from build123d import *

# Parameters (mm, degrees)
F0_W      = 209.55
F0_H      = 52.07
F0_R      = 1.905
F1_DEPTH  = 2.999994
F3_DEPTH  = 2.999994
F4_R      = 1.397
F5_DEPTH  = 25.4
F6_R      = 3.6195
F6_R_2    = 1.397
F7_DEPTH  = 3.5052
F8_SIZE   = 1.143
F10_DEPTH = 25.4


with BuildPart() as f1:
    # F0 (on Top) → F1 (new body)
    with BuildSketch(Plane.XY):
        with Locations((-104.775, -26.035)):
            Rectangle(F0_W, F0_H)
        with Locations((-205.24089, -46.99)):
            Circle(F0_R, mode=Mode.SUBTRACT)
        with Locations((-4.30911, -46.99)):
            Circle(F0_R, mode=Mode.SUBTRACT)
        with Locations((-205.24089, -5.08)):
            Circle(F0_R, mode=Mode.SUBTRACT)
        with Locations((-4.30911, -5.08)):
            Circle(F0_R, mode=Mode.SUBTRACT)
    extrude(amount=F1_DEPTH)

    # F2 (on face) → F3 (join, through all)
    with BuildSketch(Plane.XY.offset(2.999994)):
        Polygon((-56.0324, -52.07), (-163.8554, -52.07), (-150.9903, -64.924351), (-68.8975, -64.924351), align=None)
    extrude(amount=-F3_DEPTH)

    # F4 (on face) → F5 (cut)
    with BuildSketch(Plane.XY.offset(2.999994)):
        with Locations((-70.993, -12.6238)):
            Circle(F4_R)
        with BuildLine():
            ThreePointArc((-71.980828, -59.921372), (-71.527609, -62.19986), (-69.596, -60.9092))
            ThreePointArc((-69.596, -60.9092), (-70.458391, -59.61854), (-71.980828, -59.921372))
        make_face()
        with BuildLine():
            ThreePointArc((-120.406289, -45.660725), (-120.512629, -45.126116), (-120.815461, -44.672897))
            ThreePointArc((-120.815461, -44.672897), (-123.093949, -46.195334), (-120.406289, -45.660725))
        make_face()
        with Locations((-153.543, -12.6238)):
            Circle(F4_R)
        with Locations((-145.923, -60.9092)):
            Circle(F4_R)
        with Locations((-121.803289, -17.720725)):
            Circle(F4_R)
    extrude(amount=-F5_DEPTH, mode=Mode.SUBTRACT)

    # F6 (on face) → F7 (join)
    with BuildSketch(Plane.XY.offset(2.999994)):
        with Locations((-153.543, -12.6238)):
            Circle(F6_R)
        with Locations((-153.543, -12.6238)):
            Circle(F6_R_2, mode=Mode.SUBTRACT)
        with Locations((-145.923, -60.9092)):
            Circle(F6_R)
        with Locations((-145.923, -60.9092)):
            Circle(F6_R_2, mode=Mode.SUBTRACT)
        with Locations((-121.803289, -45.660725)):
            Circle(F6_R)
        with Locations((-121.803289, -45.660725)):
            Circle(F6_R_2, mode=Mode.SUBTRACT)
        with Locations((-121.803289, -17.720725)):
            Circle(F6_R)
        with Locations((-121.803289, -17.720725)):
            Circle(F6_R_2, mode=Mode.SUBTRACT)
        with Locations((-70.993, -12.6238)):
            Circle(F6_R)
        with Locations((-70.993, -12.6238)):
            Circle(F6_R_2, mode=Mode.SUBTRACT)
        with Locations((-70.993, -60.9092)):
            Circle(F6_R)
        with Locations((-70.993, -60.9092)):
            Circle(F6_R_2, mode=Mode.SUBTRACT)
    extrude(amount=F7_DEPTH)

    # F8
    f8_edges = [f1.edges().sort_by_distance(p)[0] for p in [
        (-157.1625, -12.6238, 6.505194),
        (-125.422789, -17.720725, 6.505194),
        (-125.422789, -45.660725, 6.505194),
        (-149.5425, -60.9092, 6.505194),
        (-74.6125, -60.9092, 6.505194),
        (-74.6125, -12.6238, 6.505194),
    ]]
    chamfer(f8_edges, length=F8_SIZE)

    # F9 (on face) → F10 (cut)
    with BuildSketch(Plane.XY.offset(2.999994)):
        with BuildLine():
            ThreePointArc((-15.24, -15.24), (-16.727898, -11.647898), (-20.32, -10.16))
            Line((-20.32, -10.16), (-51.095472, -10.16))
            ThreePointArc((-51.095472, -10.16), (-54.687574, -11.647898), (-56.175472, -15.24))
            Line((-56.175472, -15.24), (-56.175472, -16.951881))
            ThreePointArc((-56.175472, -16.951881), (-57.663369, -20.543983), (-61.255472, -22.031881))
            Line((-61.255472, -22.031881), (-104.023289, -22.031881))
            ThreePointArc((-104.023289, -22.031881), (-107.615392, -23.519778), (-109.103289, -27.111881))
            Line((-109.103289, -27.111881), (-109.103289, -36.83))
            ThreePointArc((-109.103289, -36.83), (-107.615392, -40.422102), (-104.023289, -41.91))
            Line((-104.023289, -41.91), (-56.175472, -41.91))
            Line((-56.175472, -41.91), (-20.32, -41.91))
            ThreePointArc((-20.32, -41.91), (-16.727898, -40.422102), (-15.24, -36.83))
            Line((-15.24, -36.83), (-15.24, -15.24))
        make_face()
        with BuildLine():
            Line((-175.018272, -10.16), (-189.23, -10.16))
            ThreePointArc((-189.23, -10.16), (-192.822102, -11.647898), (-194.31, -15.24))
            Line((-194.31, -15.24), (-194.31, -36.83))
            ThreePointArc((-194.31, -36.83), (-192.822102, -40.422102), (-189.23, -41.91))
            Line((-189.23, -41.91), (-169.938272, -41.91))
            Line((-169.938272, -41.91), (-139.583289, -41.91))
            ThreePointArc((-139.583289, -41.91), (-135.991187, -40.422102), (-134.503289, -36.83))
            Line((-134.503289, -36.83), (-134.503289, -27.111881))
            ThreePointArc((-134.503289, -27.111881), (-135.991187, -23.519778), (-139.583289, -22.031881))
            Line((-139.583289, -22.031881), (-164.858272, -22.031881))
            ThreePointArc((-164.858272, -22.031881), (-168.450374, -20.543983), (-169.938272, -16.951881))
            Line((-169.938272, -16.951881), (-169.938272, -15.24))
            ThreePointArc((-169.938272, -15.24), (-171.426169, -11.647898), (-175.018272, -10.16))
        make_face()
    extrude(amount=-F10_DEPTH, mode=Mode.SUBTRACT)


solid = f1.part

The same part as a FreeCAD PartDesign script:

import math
import FreeCAD as App
import Part
import Sketcher

V = App.Vector
Q = App.Units.Quantity


def edges_at(feature, points):
    """Names of the edges that pass closest to the given points."""
    edges = feature.Shape.Edges
    near = lambda p: min(range(len(edges)), key=lambda i: edges[i].distToShape(Part.Vertex(*p))[0])
    return sorted({f"Edge{near(p) + 1}" for p in points})


def add_polygon(sketch, points):
    """Adds a closed chain of lines whose ends are joined by coincident constraints."""
    first, n = sketch.GeometryCount, len(points)
    for a, b in zip(points, points[1:] + points[:1]):
        sketch.addGeometry(Part.LineSegment(App.Vector(*a, 0), App.Vector(*b, 0)), False)
    for i in range(n):
        sketch.addConstraint(Sketcher.Constraint("Coincident", first + i, 2, first + (i + 1) % n, 1))

doc = App.newDocument("Part")
body = doc.addObject("PartDesign::Body", "Body")

sketch1 = body.newObject("Sketcher::SketchObject", "Sketch")
sketch1.AttachmentSupport = (doc.getObject("XY_Plane"), [""])
sketch1.MapMode = "FlatFace"
add_polygon(sketch1, [(-209.6, 0), (-209.6, -52.1), (0, -52.1), (0, 0)])
sketch1.addGeometry(Part.Circle(V(-205.2, -47, 0), V(0, 0, 1), 1.9), False)
sketch1.addGeometry(Part.Circle(V(-4.3, -47, 0), V(0, 0, 1), 1.9), False)
sketch1.addGeometry(Part.Circle(V(-205.2, -5.1, 0), V(0, 0, 1), 1.9), False)
sketch1.addGeometry(Part.Circle(V(-4.3, -5.1, 0), V(0, 0, 1), 1.9), False)
sketch1.addConstraint(Sketcher.Constraint("Vertical", 0))
sketch1.addConstraint(Sketcher.Constraint("Horizontal", 1))
sketch1.addConstraint(Sketcher.Constraint("Vertical", 2))
sketch1.addConstraint(Sketcher.Constraint("Horizontal", 3))
sketch1.addConstraint(Sketcher.Constraint("Coincident", 2, 2, -1, 1))
sketch1.addConstraint(Sketcher.Constraint("Equal", 4, 5))
sketch1.addConstraint(Sketcher.Constraint("Equal", 5, 6))
sketch1.addConstraint(Sketcher.Constraint("Equal", 6, 7))
sketch1.addConstraint(Sketcher.Constraint("Horizontal", 4, 3, 5, 3))
sketch1.addConstraint(Sketcher.Constraint("Horizontal", 6, 3, 7, 3))
sketch1.addConstraint(Sketcher.Constraint("Vertical", 4, 3, 6, 3))
sketch1.addConstraint(Sketcher.Constraint("Vertical", 5, 3, 7, 3))
sketch1.addConstraint(Sketcher.Constraint("Diameter", 4, Q("0.15 in")))
sketch1.addConstraint(Sketcher.Constraint("DistanceX", 1, 1, 1, 2, Q("8.25 in")))
sketch1.addConstraint(Sketcher.Constraint("DistanceY", 0, 2, 0, 1, Q("2.05 in")))
sketch1.addConstraint(Sketcher.Constraint("DistanceY", 6, 3, -1, 1, Q("0.2 in")))
sketch1.addConstraint(Sketcher.Constraint("DistanceY", 0, 2, 4, 3, Q("0.2 in")))
sketch1.addConstraint(Sketcher.Constraint("DistanceX", 4, 3, 5, 3, Q("7.9107 in")))
sketch1.addConstraint(Sketcher.Constraint("DistanceX", 4, 3, -1, 1, Q("205.24089 mm")))
pad1 = body.newObject("PartDesign::Pad", "Pad")
pad1.Profile = sketch1
pad1.Length = 2.999994

sketch2 = body.newObject("Sketcher::SketchObject", "Sketch001")
sketch2.AttachmentSupport = (doc.getObject("XY_Plane"), [""])
sketch2.MapMode = "FlatFace"
sketch2.AttachmentOffset = App.Placement(V(0, 0, 2.999994), App.Rotation())
add_polygon(sketch2, [(-56, -52), (-164, -52), (-151, -65), (-69, -65)])
sketch2.addConstraint(Sketcher.Constraint("Horizontal", 0))
sketch2.addConstraint(Sketcher.Constraint("Horizontal", 2))
sketch2.addConstraint(Sketcher.Constraint("Equal", 1, 3))
sketch2.addConstraint(Sketcher.Constraint("DistanceX", 0, 2, 0, 1, Q("4.245 in")))
sketch2.addConstraint(Sketcher.Constraint("DistanceX", 2, 1, 2, 2, Q("3.232 in")))
sketch2.addConstraint(Sketcher.Constraint("DistanceY", 0, 2, -1, 1, Q("2.05 in")))
sketch2.addConstraint(Sketcher.Constraint("Distance", 1, Q("0.716 in")))
sketch2.addConstraint(Sketcher.Constraint("DistanceX", 0, 2, -1, 1, Q("6.451 in")))
pad2 = body.newObject("PartDesign::Pad", "Pad001")
pad2.Profile = sketch2
pad2.Length = 2.999994
pad2.Reversed = True

sketch3 = body.newObject("Sketcher::SketchObject", "Sketch002")
sketch3.AttachmentSupport = (doc.getObject("XY_Plane"), [""])
sketch3.MapMode = "FlatFace"
sketch3.AttachmentOffset = App.Placement(V(0, 0, 2.999994), App.Rotation())
sketch3.addGeometry(Part.Circle(V(-71, -12.6, 0), V(0, 0, 1), 1.4), False)
sketch3.addGeometry(Part.ArcOfCircle(Part.Circle(V(-71, -60.9, 0), V(0, 0, 1), 1.4), math.radians(135), math.radians(360)), False)
sketch3.addGeometry(Part.ArcOfCircle(Part.Circle(V(-71, -60.9, 0), V(0, 0, 1), 1.4), math.radians(0), math.radians(135)), False)
sketch3.addGeometry(Part.ArcOfCircle(Part.Circle(V(-121.8, -45.7, 0), V(0, 0, 1), 1.4), math.radians(0), math.radians(45)), False)
sketch3.addGeometry(Part.ArcOfCircle(Part.Circle(V(-121.8, -45.7, 0), V(0, 0, 1), 1.4), math.radians(45), math.radians(360)), False)
sketch3.addGeometry(Part.Circle(V(-153.5, -12.6, 0), V(0, 0, 1), 1.4), False)
sketch3.addGeometry(Part.Circle(V(-145.9, -60.9, 0), V(0, 0, 1), 1.4), False)
sketch3.addGeometry(Part.Circle(V(-121.8, -17.7, 0), V(0, 0, 1), 1.4), False)
sketch3.addConstraint(Sketcher.Constraint("Tangent", 1, 1, 2, 2))
sketch3.addConstraint(Sketcher.Constraint("Coincident", 2, 1, 1, 2))
sketch3.addConstraint(Sketcher.Constraint("Tangent", 3, 1, 4, 2))
sketch3.addConstraint(Sketcher.Constraint("Coincident", 4, 1, 3, 2))
sketch3.addConstraint(Sketcher.Constraint("Equal", 0, 1))
sketch3.addConstraint(Sketcher.Constraint("Equal", 2, 4))
sketch3.addConstraint(Sketcher.Constraint("Equal", 4, 5))
sketch3.addConstraint(Sketcher.Constraint("Equal", 5, 6))
sketch3.addConstraint(Sketcher.Constraint("Equal", 6, 7))
sketch3.addConstraint(Sketcher.Constraint("Horizontal", 0, 3, 5, 3))
sketch3.addConstraint(Sketcher.Constraint("Horizontal", 2, 3, 6, 3))
sketch3.addConstraint(Sketcher.Constraint("Horizontal", 6, 3, 2, 1))
sketch3.addConstraint(Sketcher.Constraint("Horizontal", 4, 3, 3, 1))
sketch3.addConstraint(Sketcher.Constraint("Vertical", 0, 3, 1, 3))
sketch3.addConstraint(Sketcher.Constraint("Vertical", 4, 3, 7, 3))
sketch3.addConstraint(Sketcher.Constraint("Diameter", 0, Q("0.11 in")))
sketch3.addConstraint(Sketcher.Constraint("DistanceX", 5, 3, 6, 3, Q("0.3 in")))
sketch3.addConstraint(Sketcher.Constraint("DistanceY", 3, 3, 7, 3, Q("1.0999999 in")))
sketch3.addConstraint(Sketcher.Constraint("DistanceX", 2, 1, -1, 1, Q("2.74 in")))
sketch3.addConstraint(Sketcher.Constraint("DistanceX", 5, 3, 0, 3, Q("3.25 in")))
sketch3.addConstraint(Sketcher.Constraint("DistanceY", 0, 3, -1, 1, Q("0.497 in")))
sketch3.addConstraint(Sketcher.Constraint("DistanceY", 1, 3, -1, 1, Q("2.398 in")))
sketch3.addConstraint(Sketcher.Constraint("DistanceX", 4, 3, -1, 1, Q("121.803289 mm")))
sketch3.addConstraint(Sketcher.Constraint("DistanceX", 4, 1, -1, 1, Q("120.815461 mm")))
sketch3.addConstraint(Sketcher.Constraint("DistanceX", 1, 1, 2, 3, Q("0.987828 mm")))
sketch3.addConstraint(Sketcher.Constraint("DistanceY", 1, 1, 3, 3, Q("14.260649 mm")))
pocket1 = body.newObject("PartDesign::Pocket", "Pocket")
pocket1.Profile = sketch3
pocket1.Length = Q("1 in")

sketch4 = body.newObject("Sketcher::SketchObject", "Sketch003")
sketch4.AttachmentSupport = (doc.getObject("XY_Plane"), [""])
sketch4.MapMode = "FlatFace"
sketch4.AttachmentOffset = App.Placement(V(0, 0, 2.999994), App.Rotation())
sketch4.addGeometry(Part.Circle(V(-153.5, -12.6, 0), V(0, 0, 1), 3.6), False)
sketch4.addGeometry(Part.Circle(V(-153.5, -12.6, 0), V(0, 0, 1), 1.4), False)
sketch4.addGeometry(Part.Circle(V(-145.9, -60.9, 0), V(0, 0, 1), 3.6), False)
sketch4.addGeometry(Part.Circle(V(-145.9, -60.9, 0), V(0, 0, 1), 1.4), False)
sketch4.addGeometry(Part.Circle(V(-121.8, -45.7, 0), V(0, 0, 1), 3.6), False)
sketch4.addGeometry(Part.Circle(V(-121.8, -45.7, 0), V(0, 0, 1), 1.4), False)
sketch4.addGeometry(Part.Circle(V(-121.8, -17.7, 0), V(0, 0, 1), 3.6), False)
sketch4.addGeometry(Part.Circle(V(-121.8, -17.7, 0), V(0, 0, 1), 1.4), False)
sketch4.addGeometry(Part.Circle(V(-71, -12.6, 0), V(0, 0, 1), 3.6), False)
sketch4.addGeometry(Part.Circle(V(-71, -12.6, 0), V(0, 0, 1), 1.4), False)
sketch4.addGeometry(Part.Circle(V(-71, -60.9, 0), V(0, 0, 1), 3.6), False)
sketch4.addGeometry(Part.Circle(V(-71, -60.9, 0), V(0, 0, 1), 1.4), False)
sketch4.addConstraint(Sketcher.Constraint("Coincident", 1, 3, 0, 3))
sketch4.addConstraint(Sketcher.Constraint("Coincident", 3, 3, 2, 3))
sketch4.addConstraint(Sketcher.Constraint("Coincident", 5, 3, 4, 3))
sketch4.addConstraint(Sketcher.Constraint("Coincident", 7, 3, 6, 3))
sketch4.addConstraint(Sketcher.Constraint("Coincident", 9, 3, 8, 3))
sketch4.addConstraint(Sketcher.Constraint("Coincident", 11, 3, 10, 3))
sketch4.addConstraint(Sketcher.Constraint("Equal", 0, 2))
sketch4.addConstraint(Sketcher.Constraint("Equal", 1, 3))
sketch4.addConstraint(Sketcher.Constraint("Equal", 2, 4))
sketch4.addConstraint(Sketcher.Constraint("Equal", 3, 5))
sketch4.addConstraint(Sketcher.Constraint("Equal", 4, 6))
sketch4.addConstraint(Sketcher.Constraint("Equal", 5, 7))
sketch4.addConstraint(Sketcher.Constraint("Equal", 6, 8))
sketch4.addConstraint(Sketcher.Constraint("Equal", 7, 9))
sketch4.addConstraint(Sketcher.Constraint("Equal", 8, 10))
sketch4.addConstraint(Sketcher.Constraint("Equal", 9, 11))
sketch4.addConstraint(Sketcher.Constraint("Horizontal", 1, 3, 8, 3))
sketch4.addConstraint(Sketcher.Constraint("Horizontal", 3, 3, 10, 3))
sketch4.addConstraint(Sketcher.Constraint("Vertical", 5, 3, 6, 3))
sketch4.addConstraint(Sketcher.Constraint("Vertical", 9, 3, 10, 3))
sketch4.addConstraint(Sketcher.Constraint("Diameter", 1, Q("0.11 in")))
sketch4.addConstraint(Sketcher.Constraint("Diameter", 0, Q("0.285 in")))
sketch4.addConstraint(Sketcher.Constraint("DistanceX", 0, 3, 2, 3, Q("0.3 in")))
sketch4.addConstraint(Sketcher.Constraint("DistanceY", 4, 3, 6, 3, Q("1.1 in")))
sketch4.addConstraint(Sketcher.Constraint("DistanceX", 0, 3, 8, 3, Q("3.25 in")))
sketch4.addConstraint(Sketcher.Constraint("DistanceX", 0, 3, -1, 1, Q("6.045 in")))
sketch4.addConstraint(Sketcher.Constraint("DistanceY", 0, 3, -1, 1, Q("0.497 in")))
sketch4.addConstraint(Sketcher.Constraint("DistanceY", 2, 3, -1, 1, Q("2.398 in")))
sketch4.addConstraint(Sketcher.Constraint("DistanceX", 4, 3, -1, 1, Q("121.803289 mm")))
sketch4.addConstraint(Sketcher.Constraint("DistanceY", 4, 3, -1, 1, Q("45.660725 mm")))
pad3 = body.newObject("PartDesign::Pad", "Pad002")
pad3.Profile = sketch4
pad3.Length = Q("0.138 in")
doc.recompute()

chamfer = body.newObject("PartDesign::Chamfer", "Chamfer")
chamfer.Base = (pad3, edges_at(pad3, [
    (-157.162, -12.624, 6.505),
    (-125.423, -17.721, 6.505),
    (-125.423, -45.661, 6.505),
    (-149.542, -60.909, 6.505),
    (-74.612, -60.909, 6.505),
    (-74.612, -12.624, 6.505),
]))
chamfer.Size = Q("0.045 in")

sketch5 = body.newObject("Sketcher::SketchObject", "Sketch004")
sketch5.AttachmentSupport = (doc.getObject("XY_Plane"), [""])
sketch5.MapMode = "FlatFace"
sketch5.AttachmentOffset = App.Placement(V(0, 0, 2.999994), App.Rotation())
sketch5.addGeometry(Part.ArcOfCircle(Part.Circle(V(-20.3, -15.2, 0), V(0, 0, 1), 5.1), math.radians(0), math.radians(90)), False)
sketch5.addGeometry(Part.LineSegment(V(-20.3, -10.2, 0), V(-51.1, -10.2, 0)), False)
sketch5.addGeometry(Part.ArcOfCircle(Part.Circle(V(-51.1, -15.2, 0), V(0, 0, 1), 5.1), math.radians(90), math.radians(180)), False)
sketch5.addGeometry(Part.LineSegment(V(-56.2, -15.2, 0), V(-56.2, -17, 0)), False)
sketch5.addGeometry(Part.ArcOfCircle(Part.Circle(V(-61.3, -17, 0), V(0, 0, 1), 5.1), math.radians(-90), math.radians(0)), False)
sketch5.addGeometry(Part.LineSegment(V(-61.3, -22, 0), V(-104, -22, 0)), False)
sketch5.addGeometry(Part.ArcOfCircle(Part.Circle(V(-104, -27.1, 0), V(0, 0, 1), 5.1), math.radians(90), math.radians(180)), False)
sketch5.addGeometry(Part.LineSegment(V(-109.1, -27.1, 0), V(-109.1, -36.8, 0)), False)
sketch5.addGeometry(Part.ArcOfCircle(Part.Circle(V(-104, -36.8, 0), V(0, 0, 1), 5.1), math.radians(180), math.radians(270)), False)
sketch5.addGeometry(Part.LineSegment(V(-104, -41.9, 0), V(-20.3, -41.9, 0)), False)
sketch5.addGeometry(Part.ArcOfCircle(Part.Circle(V(-20.3, -36.8, 0), V(0, 0, 1), 5.1), math.radians(-90), math.radians(0)), False)
sketch5.addGeometry(Part.LineSegment(V(-15.2, -36.8, 0), V(-15.2, -15.2, 0)), False)
sketch5.addGeometry(Part.LineSegment(V(-175, -10.2, 0), V(-189.2, -10.2, 0)), False)
sketch5.addGeometry(Part.ArcOfCircle(Part.Circle(V(-189.2, -15.2, 0), V(0, 0, 1), 5.1), math.radians(90), math.radians(180)), False)
sketch5.addGeometry(Part.LineSegment(V(-194.3, -15.2, 0), V(-194.3, -36.8, 0)), False)
sketch5.addGeometry(Part.ArcOfCircle(Part.Circle(V(-189.2, -36.8, 0), V(0, 0, 1), 5.1), math.radians(-180), math.radians(-90)), False)
sketch5.addGeometry(Part.LineSegment(V(-189.2, -41.9, 0), V(-139.6, -41.9, 0)), False)
sketch5.addGeometry(Part.ArcOfCircle(Part.Circle(V(-139.6, -36.8, 0), V(0, 0, 1), 5.1), math.radians(-90), math.radians(0)), False)
sketch5.addGeometry(Part.LineSegment(V(-134.5, -36.8, 0), V(-134.5, -27.1, 0)), False)
sketch5.addGeometry(Part.ArcOfCircle(Part.Circle(V(-139.6, -27.1, 0), V(0, 0, 1), 5.1), math.radians(0), math.radians(90)), False)
sketch5.addGeometry(Part.LineSegment(V(-139.6, -22, 0), V(-164.9, -22, 0)), False)
sketch5.addGeometry(Part.ArcOfCircle(Part.Circle(V(-164.9, -17, 0), V(0, 0, 1), 5.1), math.radians(-180), math.radians(-90)), False)
sketch5.addGeometry(Part.LineSegment(V(-169.9, -17, 0), V(-169.9, -15.2, 0)), False)
sketch5.addGeometry(Part.ArcOfCircle(Part.Circle(V(-175, -15.2, 0), V(0, 0, 1), 5.1), math.radians(0), math.radians(90)), False)
sketch5.addConstraint(Sketcher.Constraint("Tangent", 0, 2, 1, 1))
sketch5.addConstraint(Sketcher.Constraint("Tangent", 1, 2, 2, 1))
sketch5.addConstraint(Sketcher.Constraint("Tangent", 2, 2, 3, 1))
sketch5.addConstraint(Sketcher.Constraint("Tangent", 3, 2, 4, 2))
sketch5.addConstraint(Sketcher.Constraint("Tangent", 4, 1, 5, 1))
sketch5.addConstraint(Sketcher.Constraint("Tangent", 5, 2, 6, 1))
sketch5.addConstraint(Sketcher.Constraint("Tangent", 6, 2, 7, 1))
sketch5.addConstraint(Sketcher.Constraint("Tangent", 7, 2, 8, 1))
sketch5.addConstraint(Sketcher.Constraint("Tangent", 8, 2, 9, 1))
sketch5.addConstraint(Sketcher.Constraint("Tangent", 9, 2, 10, 1))
sketch5.addConstraint(Sketcher.Constraint("Tangent", 10, 2, 11, 1))
sketch5.addConstraint(Sketcher.Constraint("Tangent", 11, 2, 0, 1))
sketch5.addConstraint(Sketcher.Constraint("Tangent", 12, 2, 13, 1))
sketch5.addConstraint(Sketcher.Constraint("Tangent", 13, 2, 14, 1))
sketch5.addConstraint(Sketcher.Constraint("Tangent", 14, 2, 15, 1))
sketch5.addConstraint(Sketcher.Constraint("Tangent", 15, 2, 16, 1))
sketch5.addConstraint(Sketcher.Constraint("Tangent", 16, 2, 17, 1))
sketch5.addConstraint(Sketcher.Constraint("Tangent", 17, 2, 18, 1))
sketch5.addConstraint(Sketcher.Constraint("Tangent", 18, 2, 19, 1))
sketch5.addConstraint(Sketcher.Constraint("Tangent", 19, 2, 20, 1))
sketch5.addConstraint(Sketcher.Constraint("Tangent", 20, 2, 21, 2))
sketch5.addConstraint(Sketcher.Constraint("Tangent", 21, 1, 22, 1))
sketch5.addConstraint(Sketcher.Constraint("Tangent", 22, 2, 23, 1))
sketch5.addConstraint(Sketcher.Constraint("Tangent", 23, 2, 12, 1))
sketch5.addConstraint(Sketcher.Constraint("Horizontal", 1))
sketch5.addConstraint(Sketcher.Constraint("Vertical", 3))
sketch5.addConstraint(Sketcher.Constraint("Horizontal", 5))
sketch5.addConstraint(Sketcher.Constraint("Vertical", 7))
sketch5.addConstraint(Sketcher.Constraint("Horizontal", 9))
sketch5.addConstraint(Sketcher.Constraint("Vertical", 11))
sketch5.addConstraint(Sketcher.Constraint("Horizontal", 12))
sketch5.addConstraint(Sketcher.Constraint("Vertical", 14))
sketch5.addConstraint(Sketcher.Constraint("Horizontal", 16))
sketch5.addConstraint(Sketcher.Constraint("Vertical", 18))
sketch5.addConstraint(Sketcher.Constraint("Horizontal", 20))
sketch5.addConstraint(Sketcher.Constraint("Vertical", 22))
sketch5.addConstraint(Sketcher.Constraint("Equal", 0, 2))
sketch5.addConstraint(Sketcher.Constraint("Equal", 2, 4))
sketch5.addConstraint(Sketcher.Constraint("Equal", 4, 6))
sketch5.addConstraint(Sketcher.Constraint("Equal", 6, 8))
sketch5.addConstraint(Sketcher.Constraint("Equal", 8, 10))
sketch5.addConstraint(Sketcher.Constraint("Equal", 10, 13))
sketch5.addConstraint(Sketcher.Constraint("Equal", 13, 15))
sketch5.addConstraint(Sketcher.Constraint("Equal", 15, 17))
sketch5.addConstraint(Sketcher.Constraint("Equal", 17, 19))
sketch5.addConstraint(Sketcher.Constraint("Equal", 19, 21))
sketch5.addConstraint(Sketcher.Constraint("Equal", 21, 23))
sketch5.addConstraint(Sketcher.Constraint("Horizontal", 2, 3, 13, 3))
sketch5.addConstraint(Sketcher.Constraint("Horizontal", 10, 3, 15, 3))
sketch5.addConstraint(Sketcher.Constraint("Horizontal", 6, 3, 19, 3))
sketch5.addConstraint(Sketcher.Constraint("Radius", 0, Q("0.2000001 in")))
sketch5.addConstraint(Sketcher.Constraint("DistanceX", 17, 2, 7, 2, Q("1 in")))
sketch5.addConstraint(Sketcher.Constraint("DistanceY", 11, 1, 11, 2, Q("0.85 in")))
sketch5.addConstraint(Sketcher.Constraint("DistanceX", 0, 3, -1, 1, Q("0.8000001 in")))
sketch5.addConstraint(Sketcher.Constraint("DistanceY", 0, 3, -1, 1, Q("0.6000001 in")))
sketch5.addConstraint(Sketcher.Constraint("DistanceX", 13, 3, -1, 1, Q("7.4499999 in")))
sketch5.addConstraint(Sketcher.Constraint("DistanceX", 9, 1, 9, 2, Q("83.703289 mm")))
sketch5.addConstraint(Sketcher.Constraint("DistanceY", 3, 2, 3, 1, Q("1.711881 mm")))
sketch5.addConstraint(Sketcher.Constraint("DistanceX", 1, 2, 1, 1, Q("30.775472 mm")))
sketch5.addConstraint(Sketcher.Constraint("DistanceX", 12, 2, 12, 1, Q("14.211728 mm")))
pocket2 = body.newObject("PartDesign::Pocket", "Pocket001")
pocket2.Profile = sketch5
pocket2.Length = Q("1 in")

doc.recompute()
